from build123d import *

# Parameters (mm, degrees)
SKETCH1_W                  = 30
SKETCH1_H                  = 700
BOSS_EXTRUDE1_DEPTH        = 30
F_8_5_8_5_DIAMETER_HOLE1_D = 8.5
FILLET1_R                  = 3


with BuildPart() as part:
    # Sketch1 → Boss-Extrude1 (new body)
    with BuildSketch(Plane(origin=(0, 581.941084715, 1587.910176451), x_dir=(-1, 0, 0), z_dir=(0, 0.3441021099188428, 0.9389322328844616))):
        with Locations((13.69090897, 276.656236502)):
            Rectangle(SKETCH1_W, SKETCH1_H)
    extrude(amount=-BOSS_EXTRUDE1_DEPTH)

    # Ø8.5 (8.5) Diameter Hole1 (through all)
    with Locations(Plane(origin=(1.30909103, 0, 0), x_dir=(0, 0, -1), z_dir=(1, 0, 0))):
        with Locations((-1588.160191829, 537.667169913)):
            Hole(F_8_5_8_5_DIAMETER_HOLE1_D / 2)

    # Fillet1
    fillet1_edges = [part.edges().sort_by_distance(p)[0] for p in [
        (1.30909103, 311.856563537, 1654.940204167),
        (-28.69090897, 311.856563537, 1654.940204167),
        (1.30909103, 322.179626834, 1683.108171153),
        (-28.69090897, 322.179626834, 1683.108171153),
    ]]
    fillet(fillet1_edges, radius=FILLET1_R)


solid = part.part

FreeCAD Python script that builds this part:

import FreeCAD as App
import Part
import Sketcher

V = App.Vector
Q = App.Units.Quantity


def edges_at(feature, points):
    """Names of the edges that pass closest to the given points."""
    edges = feature.Shape.Edges
    near = lambda p: min(range(len(edges)), key=lambda i: edges[i].distToShape(Part.Vertex(*p))[0])
    return sorted({f"Edge{near(p) + 1}" for p in points})


def add_polygon(sketch, points):
    """Adds a closed chain of lines whose ends are joined by coincident constraints."""
    first, n = sketch.GeometryCount, len(points)
    for a, b in zip(points, points[1:] + points[:1]):
        sketch.addGeometry(Part.LineSegment(App.Vector(*a, 0), App.Vector(*b, 0)), False)
    for i in range(n):
        sketch.addConstraint(Sketcher.Constraint("Coincident", first + i, 2, first + (i + 1) % n, 1))

doc = App.newDocument("Part")
body = doc.addObject("PartDesign::Body", "Body")

# Sketch on an angled plane
sketch1 = body.newObject("Sketcher::SketchObject", "Sketch")
sketch1.Placement = App.Placement(V(0, 581.941085, 1587.910176), App.Rotation(V(-1, 0, 0), V(0, -0.938932233, 0.34410211), V(0, 0.34410211, 0.938932233), "ZXY"))
add_polygon(sketch1, [(-1, 627), (-1, -73), (29, -73), (29, 627)])  # lines 0-3
sketch1.addConstraint([
    Sketcher.Constraint("Vertical", 0),
    Sketcher.Constraint("Horizontal", 1),
    Sketcher.Constraint("Vertical", 2),
    Sketcher.Constraint("Horizontal", 3),
    Sketcher.Constraint("DistanceX", 1, 1, 1, 2, Q("30 mm")),
    Sketcher.Constraint("DistanceY", 0, 2, 0, 1, Q("700 mm")),
    Sketcher.Constraint("DistanceX", 0, 2, -1, 1, Q("1.309091 mm")),
    Sketcher.Constraint("DistanceY", 0, 2, -1, 1, Q("73.343764 mm")),
])
pad1 = body.newObject("PartDesign::Pad", "Pad")
pad1.Profile = sketch1
pad1.Length = 30
pad1.Reversed = True

# Sketch on YZ plane
sketch2 = body.newObject("Sketcher::SketchObject", "Sketch001")
sketch2.AttachmentSupport = (doc.getObject("YZ_Plane"), [""])
sketch2.MapMode = "FlatFace"
sketch2.AttachmentOffset = App.Placement(V(0, 0, 1.309091), App.Rotation())
sketch2.addGeometry(Part.Circle(V(537.7, 1588.2, 0), V(0, 0, 1), 4.2), False)
sketch2.addConstraint([
    Sketcher.Constraint("Diameter", 0, Q("8.5 mm")),
    Sketcher.Constraint("DistanceX", -1, 1, 0, 3, Q("537.66717 mm")),
    Sketcher.Constraint("DistanceY", -1, 1, 0, 3, Q("1588.160192 mm")),
])
doc.recompute()
hole = body.newObject("PartDesign::Hole", "Hole")
hole.Profile = sketch2
hole.ThreadType = "None"
hole.Diameter = 8.5
hole.DepthType = "ThroughAll"
doc.recompute()

fillet = body.newObject("PartDesign::Fillet", "Fillet")
fillet.Base = (hole, edges_at(hole, [
    (1.309, 311.857, 1654.94),
    (-28.691, 311.857, 1654.94),
    (1.309, 322.18, 1683.108),
    (-28.691, 322.18, 1683.108),
]))
fillet.Radius = 3

doc.recompute()
